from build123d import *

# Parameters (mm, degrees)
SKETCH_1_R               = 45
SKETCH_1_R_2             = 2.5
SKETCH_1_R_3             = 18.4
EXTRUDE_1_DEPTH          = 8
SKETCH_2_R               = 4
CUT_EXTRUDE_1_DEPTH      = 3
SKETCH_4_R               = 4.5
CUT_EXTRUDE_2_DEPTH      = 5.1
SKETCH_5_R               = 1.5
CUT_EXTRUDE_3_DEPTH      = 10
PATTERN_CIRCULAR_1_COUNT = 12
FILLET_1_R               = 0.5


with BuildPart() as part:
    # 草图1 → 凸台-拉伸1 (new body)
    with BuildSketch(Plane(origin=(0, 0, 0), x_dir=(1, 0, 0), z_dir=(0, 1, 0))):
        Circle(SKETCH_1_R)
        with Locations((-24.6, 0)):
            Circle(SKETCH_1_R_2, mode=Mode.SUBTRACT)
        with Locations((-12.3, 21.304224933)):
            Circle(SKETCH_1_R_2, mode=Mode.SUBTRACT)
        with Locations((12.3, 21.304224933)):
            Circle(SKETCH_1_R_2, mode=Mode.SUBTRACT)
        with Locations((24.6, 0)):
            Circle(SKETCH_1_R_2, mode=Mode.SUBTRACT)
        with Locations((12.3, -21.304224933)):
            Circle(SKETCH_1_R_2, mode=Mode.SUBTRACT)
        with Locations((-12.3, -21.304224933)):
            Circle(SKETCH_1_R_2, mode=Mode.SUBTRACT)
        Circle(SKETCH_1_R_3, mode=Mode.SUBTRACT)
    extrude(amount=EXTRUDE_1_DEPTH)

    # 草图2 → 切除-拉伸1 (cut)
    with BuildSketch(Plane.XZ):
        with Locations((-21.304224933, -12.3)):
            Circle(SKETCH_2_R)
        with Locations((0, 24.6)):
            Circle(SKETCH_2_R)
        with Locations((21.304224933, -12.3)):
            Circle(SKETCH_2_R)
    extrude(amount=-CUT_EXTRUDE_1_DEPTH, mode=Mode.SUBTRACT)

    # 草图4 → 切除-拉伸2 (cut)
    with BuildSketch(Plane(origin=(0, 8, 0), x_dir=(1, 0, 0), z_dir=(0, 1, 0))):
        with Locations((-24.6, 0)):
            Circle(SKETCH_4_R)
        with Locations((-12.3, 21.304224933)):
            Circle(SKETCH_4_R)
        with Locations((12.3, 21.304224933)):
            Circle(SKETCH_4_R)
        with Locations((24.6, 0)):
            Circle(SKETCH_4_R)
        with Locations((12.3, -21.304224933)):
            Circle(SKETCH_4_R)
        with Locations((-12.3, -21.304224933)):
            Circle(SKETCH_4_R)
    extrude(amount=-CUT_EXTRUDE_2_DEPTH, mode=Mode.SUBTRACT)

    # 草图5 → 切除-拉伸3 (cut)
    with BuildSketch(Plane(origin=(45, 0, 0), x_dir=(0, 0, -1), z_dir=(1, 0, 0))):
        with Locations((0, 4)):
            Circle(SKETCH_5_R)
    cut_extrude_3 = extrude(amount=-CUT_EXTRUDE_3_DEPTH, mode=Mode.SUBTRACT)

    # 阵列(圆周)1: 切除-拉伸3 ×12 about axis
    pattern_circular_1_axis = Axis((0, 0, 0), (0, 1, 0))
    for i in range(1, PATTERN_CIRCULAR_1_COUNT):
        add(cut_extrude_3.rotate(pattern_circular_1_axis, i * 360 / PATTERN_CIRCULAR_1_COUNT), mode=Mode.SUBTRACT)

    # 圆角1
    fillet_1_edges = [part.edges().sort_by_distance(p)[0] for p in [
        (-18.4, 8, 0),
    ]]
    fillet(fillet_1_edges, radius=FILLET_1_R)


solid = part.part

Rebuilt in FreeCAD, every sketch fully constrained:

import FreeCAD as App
import Part
import Sketcher

V = App.Vector


def edges_at(feature, points):
    """Names of the edges that pass closest to the given points."""
    edges = feature.Shape.Edges
    near = lambda p: min(range(len(edges)), key=lambda i: edges[i].distToShape(Part.Vertex(*p))[0])
    return sorted({f"Edge{near(p) + 1}" for p in points})

doc = App.newDocument("Part")
params = doc.addObject("Spreadsheet::Sheet", "Params")
for row, (alias, value) in enumerate([
    ("sketch1_diameter", "90 mm"),
    ("sketch1_diameter2", "5 mm"),
    ("sketch1_diameter3", "36.8 mm"),
    ("pad1_length", "8 mm"),
    ("sketch2_diameter", "8 mm"),
    ("pocket1_length", "3 mm"),
    ("sketch3_diameter", "9 mm"),
    ("pocket2_length", "5.1 mm"),
    ("sketch4_diameter", "3 mm"),
    ("pocket3_length", "10 mm"),
    ("fillet_radius", "0.5 mm"),
], start=1):
    params.set(f"A{row}", alias)
    params.set(f"B{row}", "=" + value)
    params.setAlias(f"B{row}", alias)

body = doc.addObject("PartDesign::Body", "Body")

sketch1 = body.newObject("Sketcher::SketchObject", "Sketch")
sketch1.AttachmentSupport = (doc.getObject("XZ_Plane"), [""])
sketch1.MapMode = "FlatFace"
sketch1.addGeometry([
    Part.Circle(V(0, 0, 0), V(0, 0, 1), 45),
    Part.Circle(V(-12.3, 21.3, 0), V(0, 0, 1), 2.5),
    Part.Circle(V(12.3, 21.3, 0), V(0, 0, 1), 2.5),
    Part.Circle(V(-24.6, 0, 0), V(0, 0, 1), 2.5),
    Part.Circle(V(-12.3, -21.3, 0), V(0, 0, 1), 2.5),
    Part.Circle(V(0, 0, 0), V(0, 0, 1), 18.4),
    Part.Circle(V(24.6, 0, 0), V(0, 0, 1), 2.5),
    Part.Circle(V(12.3, -21.3, 0), V(0, 0, 1), 2.5),
], False)
sketch1.addConstraint([
    Sketcher.Constraint("Coincident", 0, 3, -1, 1),
    Sketcher.Constraint("Coincident", 5, 3, -1, 1),
    Sketcher.Constraint("Equal", 1, 2),
    Sketcher.Constraint("Equal", 2, 3),
    Sketcher.Constraint("Equal", 3, 4),
    Sketcher.Constraint("Equal", 4, 6),
    Sketcher.Constraint("Equal", 6, 7),
    Sketcher.Constraint("Symmetric", 2, 3, 4, 3, -1, 1),
    Sketcher.Constraint("Symmetric", 3, 3, 6, 3, -1, 1),
    Sketcher.Constraint("Symmetric", 1, 3, 7, 3, -1, 1),
    Sketcher.Constraint("Symmetric", 1, 3, 2, 3, -2),
    Sketcher.Constraint("PointOnObject", 3, 3, -1),
    Sketcher.Constraint("Diameter", 0, 90.0),
    Sketcher.Constraint("Diameter", 1, 5.0),
    Sketcher.Constraint("Diameter", 5, 36.8),
    Sketcher.Constraint("DistanceX", 1, 3, -1, 1, 12.3),
    Sketcher.Constraint("DistanceX", 3, 3, -1, 1, 24.6),
    Sketcher.Constraint("DistanceY", 4, 3, 1, 3, 42.60845),
])
sketch1.setExpression("Constraints[12]", "Params.sketch1_diameter")
sketch1.setExpression("Constraints[13]", "Params.sketch1_diameter2")
sketch1.setExpression("Constraints[14]", "Params.sketch1_diameter3")
pad1 = body.newObject("PartDesign::Pad", "Pad")
pad1.Profile = sketch1
pad1.setExpression("Length", "Params.pad1_length")
pad1.Reversed = True

sketch2 = body.newObject("Sketcher::SketchObject", "Sketch001")
sketch2.AttachmentSupport = (doc.getObject("XZ_Plane"), [""])
sketch2.MapMode = "FlatFace"
sketch2.addGeometry([
    Part.Circle(V(-21.3, -12.3, 0), V(0, 0, 1), 4),
    Part.Circle(V(0, 24.6, 0), V(0, 0, 1), 4),
    Part.Circle(V(21.3, -12.3, 0), V(0, 0, 1), 4),
], False)
sketch2.addConstraint([
    Sketcher.Constraint("Equal", 0, 1),
    Sketcher.Constraint("Equal", 1, 2),
    Sketcher.Constraint("Symmetric", 0, 3, 2, 3, -2),
    Sketcher.Constraint("PointOnObject", 1, 3, -2),
    Sketcher.Constraint("Diameter", 0, 8.0),
    Sketcher.Constraint("DistanceY", 0, 3, -1, 1, 12.3),
    Sketcher.Constraint("DistanceY", -1, 1, 1, 3, 24.6),
    Sketcher.Constraint("DistanceX", 0, 3, 2, 3, 42.60845),
])
sketch2.setExpression("Constraints[4]", "Params.sketch2_diameter")
pocket1 = body.newObject("PartDesign::Pocket", "Pocket")
pocket1.Profile = sketch2
pocket1.setExpression("Length", "Params.pocket1_length")

sketch3 = body.newObject("Sketcher::SketchObject", "Sketch002")
sketch3.AttachmentSupport = (doc.getObject("XZ_Plane"), [""])
sketch3.MapMode = "FlatFace"
sketch3.AttachmentOffset = App.Placement(V(0, 0, -8), App.Rotation())
sketch3.addGeometry([
    Part.Circle(V(-24.6, 0, 0), V(0, 0, 1), 4.5),
    Part.Circle(V(-12.3, -21.3, 0), V(0, 0, 1), 4.5),
    Part.Circle(V(12.3, -21.3, 0), V(0, 0, 1), 4.5),
    Part.Circle(V(24.6, 0, 0), V(0, 0, 1), 4.5),
    Part.Circle(V(12.3, 21.3, 0), V(0, 0, 1), 4.5),
    Part.Circle(V(-12.3, 21.3, 0), V(0, 0, 1), 4.5),
], False)
sketch3.addConstraint([
    Sketcher.Constraint("Equal", 0, 1),
    Sketcher.Constraint("Equal", 1, 2),
    Sketcher.Constraint("Equal", 2, 3),
    Sketcher.Constraint("Equal", 3, 4),
    Sketcher.Constraint("Equal", 4, 5),
    Sketcher.Constraint("Symmetric", 0, 3, 3, 3, -1, 1),
    Sketcher.Constraint("Symmetric", 1, 3, 4, 3, -1, 1),
    Sketcher.Constraint("Symmetric", 2, 3, 5, 3, -1, 1),
    Sketcher.Constraint("Symmetric", 1, 3, 2, 3, -2),
    Sketcher.Constraint("PointOnObject", 0, 3, -1),
    Sketcher.Constraint("Diameter", 0, 9.0),
    Sketcher.Constraint("DistanceX", 0, 3, -1, 1, 24.6),
    Sketcher.Constraint("DistanceX", 1, 3, -1, 1, 12.3),
    Sketcher.Constraint("DistanceY", 2, 3, 4, 3, 42.60845),
])
sketch3.setExpression("Constraints[10]", "Params.sketch3_diameter")
pocket2 = body.newObject("PartDesign::Pocket", "Pocket001")
pocket2.Profile = sketch3
pocket2.setExpression("Length", "Params.pocket2_length")
pocket2.Reversed = True

sketch4 = body.newObject("Sketcher::SketchObject", "Sketch003")
sketch4.AttachmentSupport = (doc.getObject("YZ_Plane"), [""])
sketch4.MapMode = "FlatFace"
sketch4.AttachmentOffset = App.Placement(V(0, 0, 45), App.Rotation())
sketch4.addGeometry(Part.Circle(V(4, 0, 0), V(0, 0, 1), 1.5), False)
sketch4.addConstraint([
    Sketcher.Constraint("PointOnObject", 0, 3, -1),
    Sketcher.Constraint("Diameter", 0, 3.0),
    Sketcher.Constraint("DistanceX", -1, 1, 0, 3, 4.0),
])
sketch4.setExpression("Constraints[1]", "Params.sketch4_diameter")
pocket3 = body.newObject("PartDesign::Pocket", "Pocket002")
pocket3.Profile = sketch4
pocket3.setExpression("Length", "Params.pocket3_length")
doc.recompute()

polarpattern = body.newObject("PartDesign::PolarPattern", "PolarPattern")
polarpattern.Originals = [pocket3]
polarpattern.Axis = (doc.getObject("Y_Axis"), [""])
polarpattern.Angle = 360
polarpattern.Occurrences = 12
body.Tip = polarpattern
doc.recompute()

fillet = body.newObject("PartDesign::Fillet", "Fillet")
fillet.Base = (polarpattern, edges_at(polarpattern, [(-18.4, 8, 0)]))
fillet.setExpression("Radius", "Params.fillet_radius")

doc.recompute()
